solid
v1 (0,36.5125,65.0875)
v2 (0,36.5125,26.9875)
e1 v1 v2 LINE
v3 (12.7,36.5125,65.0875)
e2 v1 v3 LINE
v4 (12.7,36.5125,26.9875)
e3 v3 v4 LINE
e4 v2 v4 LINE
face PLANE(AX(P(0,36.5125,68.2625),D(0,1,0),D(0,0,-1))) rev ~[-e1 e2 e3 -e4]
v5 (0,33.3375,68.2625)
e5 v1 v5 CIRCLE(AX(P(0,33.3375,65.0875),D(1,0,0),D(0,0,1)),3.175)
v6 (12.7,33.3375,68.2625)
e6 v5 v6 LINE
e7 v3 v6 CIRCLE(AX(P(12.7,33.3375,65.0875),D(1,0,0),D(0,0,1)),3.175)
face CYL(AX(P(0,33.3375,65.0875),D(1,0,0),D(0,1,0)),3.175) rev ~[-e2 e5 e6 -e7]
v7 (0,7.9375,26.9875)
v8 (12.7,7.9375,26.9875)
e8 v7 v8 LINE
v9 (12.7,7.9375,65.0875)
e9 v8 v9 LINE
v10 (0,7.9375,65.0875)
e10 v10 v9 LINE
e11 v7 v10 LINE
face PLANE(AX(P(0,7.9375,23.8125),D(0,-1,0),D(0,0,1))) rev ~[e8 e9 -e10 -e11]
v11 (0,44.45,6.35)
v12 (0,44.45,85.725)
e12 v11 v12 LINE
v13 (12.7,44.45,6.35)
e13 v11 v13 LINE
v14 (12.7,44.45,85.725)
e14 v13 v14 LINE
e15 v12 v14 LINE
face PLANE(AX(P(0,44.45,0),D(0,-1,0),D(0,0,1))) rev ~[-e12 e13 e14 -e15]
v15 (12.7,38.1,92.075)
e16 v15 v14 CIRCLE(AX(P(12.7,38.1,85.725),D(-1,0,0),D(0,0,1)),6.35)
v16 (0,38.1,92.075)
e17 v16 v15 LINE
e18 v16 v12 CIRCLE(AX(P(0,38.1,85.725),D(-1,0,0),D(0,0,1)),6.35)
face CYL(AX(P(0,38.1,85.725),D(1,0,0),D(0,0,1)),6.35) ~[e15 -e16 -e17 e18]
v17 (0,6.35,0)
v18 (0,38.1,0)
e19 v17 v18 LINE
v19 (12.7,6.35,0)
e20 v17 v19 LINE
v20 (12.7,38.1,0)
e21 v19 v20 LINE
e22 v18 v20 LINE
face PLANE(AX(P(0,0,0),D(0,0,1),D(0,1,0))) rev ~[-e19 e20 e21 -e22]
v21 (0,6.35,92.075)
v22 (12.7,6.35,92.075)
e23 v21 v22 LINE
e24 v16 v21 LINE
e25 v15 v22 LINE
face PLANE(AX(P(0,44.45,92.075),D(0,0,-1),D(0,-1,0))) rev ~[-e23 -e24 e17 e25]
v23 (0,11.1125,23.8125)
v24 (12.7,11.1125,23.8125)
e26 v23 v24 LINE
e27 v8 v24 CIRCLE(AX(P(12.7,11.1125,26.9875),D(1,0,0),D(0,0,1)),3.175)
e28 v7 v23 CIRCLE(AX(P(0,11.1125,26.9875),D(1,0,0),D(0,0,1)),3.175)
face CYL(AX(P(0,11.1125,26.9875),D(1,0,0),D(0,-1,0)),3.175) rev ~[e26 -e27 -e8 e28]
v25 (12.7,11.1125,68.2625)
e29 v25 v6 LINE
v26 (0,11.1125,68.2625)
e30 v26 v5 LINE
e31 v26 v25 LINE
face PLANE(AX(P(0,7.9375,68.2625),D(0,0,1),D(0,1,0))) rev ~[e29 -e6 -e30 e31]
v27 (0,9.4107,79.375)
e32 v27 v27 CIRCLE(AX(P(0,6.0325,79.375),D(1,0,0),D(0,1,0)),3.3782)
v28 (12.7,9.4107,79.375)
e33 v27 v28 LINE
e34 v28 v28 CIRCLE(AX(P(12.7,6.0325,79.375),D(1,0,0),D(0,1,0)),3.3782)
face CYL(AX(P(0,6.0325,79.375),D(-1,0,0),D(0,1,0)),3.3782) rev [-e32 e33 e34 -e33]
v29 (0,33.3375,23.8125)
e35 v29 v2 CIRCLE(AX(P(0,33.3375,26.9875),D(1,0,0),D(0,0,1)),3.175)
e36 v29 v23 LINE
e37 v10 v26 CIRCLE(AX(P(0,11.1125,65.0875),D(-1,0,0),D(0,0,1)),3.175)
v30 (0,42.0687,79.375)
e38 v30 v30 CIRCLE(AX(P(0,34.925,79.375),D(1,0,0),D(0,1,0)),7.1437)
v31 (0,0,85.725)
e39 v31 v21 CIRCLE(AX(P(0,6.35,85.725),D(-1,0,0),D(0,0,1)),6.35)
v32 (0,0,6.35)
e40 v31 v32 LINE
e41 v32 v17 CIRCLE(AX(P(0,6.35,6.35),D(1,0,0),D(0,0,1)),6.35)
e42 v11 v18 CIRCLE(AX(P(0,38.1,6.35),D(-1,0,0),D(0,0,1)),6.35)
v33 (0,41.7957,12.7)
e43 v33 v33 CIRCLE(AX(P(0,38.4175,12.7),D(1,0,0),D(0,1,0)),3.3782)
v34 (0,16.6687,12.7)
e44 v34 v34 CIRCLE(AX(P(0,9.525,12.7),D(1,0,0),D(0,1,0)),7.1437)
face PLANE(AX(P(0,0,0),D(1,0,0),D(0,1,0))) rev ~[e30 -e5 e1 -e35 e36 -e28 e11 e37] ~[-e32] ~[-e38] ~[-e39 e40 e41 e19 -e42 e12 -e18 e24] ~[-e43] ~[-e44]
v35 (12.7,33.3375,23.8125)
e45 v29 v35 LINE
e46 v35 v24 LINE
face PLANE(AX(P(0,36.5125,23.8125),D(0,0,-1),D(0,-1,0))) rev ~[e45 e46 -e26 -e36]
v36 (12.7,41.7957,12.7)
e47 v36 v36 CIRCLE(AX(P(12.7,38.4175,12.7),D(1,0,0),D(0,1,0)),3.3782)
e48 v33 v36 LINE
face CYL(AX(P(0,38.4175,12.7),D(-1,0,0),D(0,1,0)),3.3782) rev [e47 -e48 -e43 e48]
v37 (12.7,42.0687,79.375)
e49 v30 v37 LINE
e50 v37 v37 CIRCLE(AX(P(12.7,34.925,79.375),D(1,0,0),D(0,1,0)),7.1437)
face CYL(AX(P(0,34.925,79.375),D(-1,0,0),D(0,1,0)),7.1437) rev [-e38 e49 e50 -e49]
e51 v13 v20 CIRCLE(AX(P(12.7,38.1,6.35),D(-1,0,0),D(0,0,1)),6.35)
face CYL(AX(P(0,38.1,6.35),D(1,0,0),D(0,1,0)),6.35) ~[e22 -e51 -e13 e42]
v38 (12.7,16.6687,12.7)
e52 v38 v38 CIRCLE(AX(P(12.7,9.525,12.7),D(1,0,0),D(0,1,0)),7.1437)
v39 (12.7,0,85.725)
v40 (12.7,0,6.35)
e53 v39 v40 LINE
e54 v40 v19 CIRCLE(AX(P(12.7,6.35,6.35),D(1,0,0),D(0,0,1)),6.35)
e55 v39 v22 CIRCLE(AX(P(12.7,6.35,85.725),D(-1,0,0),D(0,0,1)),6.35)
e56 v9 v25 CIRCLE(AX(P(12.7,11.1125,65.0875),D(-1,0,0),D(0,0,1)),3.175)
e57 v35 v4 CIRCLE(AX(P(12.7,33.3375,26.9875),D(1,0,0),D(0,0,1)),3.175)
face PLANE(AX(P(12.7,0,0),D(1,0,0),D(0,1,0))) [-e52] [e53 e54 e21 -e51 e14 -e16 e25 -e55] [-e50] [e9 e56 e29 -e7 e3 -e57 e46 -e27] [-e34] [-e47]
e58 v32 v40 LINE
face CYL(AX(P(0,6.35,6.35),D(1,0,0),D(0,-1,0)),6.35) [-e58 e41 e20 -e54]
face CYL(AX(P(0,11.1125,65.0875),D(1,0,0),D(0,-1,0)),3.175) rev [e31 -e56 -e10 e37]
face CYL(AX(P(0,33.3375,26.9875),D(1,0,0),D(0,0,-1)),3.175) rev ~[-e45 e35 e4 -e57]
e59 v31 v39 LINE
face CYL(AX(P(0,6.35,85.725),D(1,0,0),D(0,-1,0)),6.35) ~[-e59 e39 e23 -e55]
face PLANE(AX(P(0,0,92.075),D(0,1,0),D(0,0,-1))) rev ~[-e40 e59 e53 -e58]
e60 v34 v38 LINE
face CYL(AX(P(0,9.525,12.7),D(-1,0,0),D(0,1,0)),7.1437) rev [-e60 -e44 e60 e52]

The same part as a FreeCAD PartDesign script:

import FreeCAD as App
import Part
import Sketcher
from FreeCAD import Vector
Q = App.Units.Quantity


def edges_at(feature, points):
    """Names of the edges that pass closest to the given points."""
    edges = feature.Shape.Edges
    near = lambda p: min(range(len(edges)), key=lambda i: edges[i].distToShape(Part.Vertex(*p))[0])
    return sorted({f"Edge{near(p) + 1}" for p in points})


def add_polygon(sketch, points):
    """Adds a closed chain of lines whose ends are joined by coincident constraints."""
    first, n = sketch.GeometryCount, len(points)
    for a, b in zip(points, points[1:] + points[:1]):
        sketch.addGeometry(Part.LineSegment(App.Vector(*a, 0), App.Vector(*b, 0)), False)
    for i in range(n):
        sketch.addConstraint(Sketcher.Constraint("Coincident", first + i, 2, first + (i + 1) % n, 1))

doc = App.newDocument("Part")
body = doc.addObject("PartDesign::Body", "Body")

# Sketch on YZ plane
sketch1 = doc.addObject("Sketcher::SketchObject", "Sketch")
body.addObject(sketch1)
sketch1.AttachmentSupport = (doc.YZ_Plane, [""])
sketch1.MapMode = "FlatFace"
add_polygon(sketch1, [(0, 92.1), (0, 0), (44.5, 0), (44.5, 92.1)])  # lines 0-3
sketch1.addGeometry(Part.Circle(Vector(9.5, 12.7, 0), Vector(0, 0, 1), 7.1), False)  # 4
sketch1.addGeometry(Part.Circle(Vector(38.4, 12.7, 0), Vector(0, 0, 1), 3.4), False)  # 5
sketch1.addGeometry(Part.Circle(Vector(6, 79.4, 0), Vector(0, 0, 1), 3.4), False)  # 6
add_polygon(sketch1, [(7.9, 23.8), (7.9, 68.3), (36.5, 68.3), (36.5, 23.8)])  # lines 7-10
sketch1.addGeometry(Part.Circle(Vector(34.9, 79.4, 0), Vector(0, 0, 1), 7.1), False)  # 11
sketch1.addConstraint(Sketcher.Constraint("Vertical", 0))
sketch1.addConstraint(Sketcher.Constraint("Horizontal", 1))
sketch1.addConstraint(Sketcher.Constraint("Vertical", 2))
sketch1.addConstraint(Sketcher.Constraint("Horizontal", 3))
sketch1.addConstraint(Sketcher.Constraint("Vertical", 7))
sketch1.addConstraint(Sketcher.Constraint("Horizontal", 8))
sketch1.addConstraint(Sketcher.Constraint("Vertical", 9))
sketch1.addConstraint(Sketcher.Constraint("Horizontal", 10))
sketch1.addConstraint(Sketcher.Constraint("Coincident", 0, 2, -1, 1))
sketch1.addConstraint(Sketcher.Constraint("Equal", 5, 6))
sketch1.addConstraint(Sketcher.Constraint("Equal", 4, 11))
sketch1.addConstraint(Sketcher.Constraint("Horizontal", 4, 3, 5, 3))
sketch1.addConstraint(Sketcher.Constraint("Horizontal", 6, 3, 11, 3))
sketch1.addConstraint(Sketcher.Constraint("Equal", 3, 7))
sketch1.addConstraint(Sketcher.Constraint("Diameter", 4, Q("0.5625 in")))
sketch1.addConstraint(Sketcher.Constraint("Diameter", 5, Q("0.266 in")))
sketch1.addConstraint(Sketcher.Constraint("DistanceX", 1, 1, 1, 2, Q("1.75 in")))
sketch1.addConstraint(Sketcher.Constraint("DistanceY", -1, 1, 4, 3, Q("0.5 in")))
sketch1.addConstraint(Sketcher.Constraint("DistanceY", 11, 3, 2, 2, Q("0.5 in")))
sketch1.addConstraint(Sketcher.Constraint("DistanceX", 8, 1, 8, 2, Q("1.125 in")))
sketch1.addConstraint(Sketcher.Constraint("DistanceY", 0, 2, 0, 1, Q("3.625 in")))
sketch1.addConstraint(Sketcher.Constraint("DistanceX", -1, 1, 4, 3, Q("0.375 in")))
sketch1.addConstraint(Sketcher.Constraint("DistanceX", -1, 1, 7, 2, Q("0.3125 in")))
sketch1.addConstraint(Sketcher.Constraint("DistanceX", 4, 3, 11, 3, Q("1 in")))
sketch1.addConstraint(Sketcher.Constraint("DistanceX", 6, 3, 8, 2, Q("1.2 in")))
sketch1.addConstraint(Sketcher.Constraint("DistanceX", 10, 2, 5, 3, Q("1.2 in")))
sketch1.addConstraint(Sketcher.Constraint("DistanceY", -1, 1, 7, 2, Q("2.6875 in")))
pad1 = doc.addObject("PartDesign::Pad", "Pad")
body.addObject(pad1)
pad1.Profile = sketch1
pad1.Length = Q("0.5 in")
doc.recompute()

fillet = doc.addObject("PartDesign::Fillet", "Fillet")
body.addObject(fillet)
fillet.Base = (pad1, edges_at(pad1, [
    (6.35, 0, 92.075),
    (6.35, 44.45, 92.075),
    (6.35, 0, 0),
    (6.35, 44.45, 0),
]))
fillet.Radius = Q("0.25 in")
doc.recompute()

fillet2 = doc.addObject("PartDesign::Fillet", "Fillet001")
body.addObject(fillet2)
fillet2.Base = (fillet, edges_at(fillet, [
    (6.35, 7.938, 68.263),
    (6.35, 36.513, 68.263),
    (6.35, 36.513, 23.812),
    (6.35, 7.938, 23.812),
]))
fillet2.Radius = Q("0.125 in")

doc.recompute()
